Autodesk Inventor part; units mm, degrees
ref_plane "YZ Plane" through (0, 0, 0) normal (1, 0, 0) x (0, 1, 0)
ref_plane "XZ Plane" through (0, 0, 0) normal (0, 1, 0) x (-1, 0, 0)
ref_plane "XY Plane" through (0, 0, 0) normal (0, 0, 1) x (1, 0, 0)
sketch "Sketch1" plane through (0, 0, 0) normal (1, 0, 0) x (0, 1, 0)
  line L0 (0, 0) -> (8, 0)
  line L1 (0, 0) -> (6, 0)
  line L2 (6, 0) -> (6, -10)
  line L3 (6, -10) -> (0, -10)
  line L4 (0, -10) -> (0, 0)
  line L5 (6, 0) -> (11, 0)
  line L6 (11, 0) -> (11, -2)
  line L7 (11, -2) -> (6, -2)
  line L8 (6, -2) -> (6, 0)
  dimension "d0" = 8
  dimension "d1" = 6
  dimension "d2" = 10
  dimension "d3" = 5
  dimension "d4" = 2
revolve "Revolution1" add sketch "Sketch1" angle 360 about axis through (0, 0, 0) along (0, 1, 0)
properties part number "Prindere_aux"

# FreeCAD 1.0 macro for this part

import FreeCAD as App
import Part
import Sketcher


def add_polygon(sketch, points):
    """Adds a closed chain of lines whose ends are joined by coincident constraints."""
    first, n = sketch.GeometryCount, len(points)
    for a, b in zip(points, points[1:] + points[:1]):
        sketch.addGeometry(Part.LineSegment(App.Vector(*a, 0), App.Vector(*b, 0)), False)
    for i in range(n):
        sketch.addConstraint(Sketcher.Constraint("Coincident", first + i, 2, first + (i + 1) % n, 1))

doc = App.newDocument("Part")
body = doc.addObject("PartDesign::Body", "Body")

# Sketch on YZ plane
sketch1 = body.newObject("Sketcher::SketchObject", "Sketch")
sketch1.AttachmentSupport = (doc.getObject("YZ_Plane"), [""])
sketch1.MapMode = "FlatFace"
add_polygon(sketch1, [(0, 0), (0, -10), (6, -10), (6, -2), (11, -2), (11, 0)])  # lines 0-5
sketch1.addConstraint(Sketcher.Constraint("Vertical", 0))
sketch1.addConstraint(Sketcher.Constraint("Horizontal", 1))
sketch1.addConstraint(Sketcher.Constraint("Vertical", 2))
sketch1.addConstraint(Sketcher.Constraint("Horizontal", 3))
sketch1.addConstraint(Sketcher.Constraint("Vertical", 4))
sketch1.addConstraint(Sketcher.Constraint("Horizontal", 5))
sketch1.addConstraint(Sketcher.Constraint("Coincident", 5, 2, -1, 1))
sketch1.addConstraint(Sketcher.Constraint("DistanceX", 1, 1, 1, 2, 6.0))
sketch1.addConstraint(Sketcher.Constraint("DistanceX", 3, 1, 3, 2, 5.0))
sketch1.addConstraint(Sketcher.Constraint("DistanceY", 0, 2, 0, 1, 10.0))
sketch1.addConstraint(Sketcher.Constraint("DistanceY", 2, 1, 2, 2, 8.0))
revolution = body.newObject("PartDesign::Revolution", "Revolution")
revolution.Profile = sketch1
revolution.ReferenceAxis = (sketch1, ["H_Axis"])
revolution.Angle = 360

doc.recompute()
